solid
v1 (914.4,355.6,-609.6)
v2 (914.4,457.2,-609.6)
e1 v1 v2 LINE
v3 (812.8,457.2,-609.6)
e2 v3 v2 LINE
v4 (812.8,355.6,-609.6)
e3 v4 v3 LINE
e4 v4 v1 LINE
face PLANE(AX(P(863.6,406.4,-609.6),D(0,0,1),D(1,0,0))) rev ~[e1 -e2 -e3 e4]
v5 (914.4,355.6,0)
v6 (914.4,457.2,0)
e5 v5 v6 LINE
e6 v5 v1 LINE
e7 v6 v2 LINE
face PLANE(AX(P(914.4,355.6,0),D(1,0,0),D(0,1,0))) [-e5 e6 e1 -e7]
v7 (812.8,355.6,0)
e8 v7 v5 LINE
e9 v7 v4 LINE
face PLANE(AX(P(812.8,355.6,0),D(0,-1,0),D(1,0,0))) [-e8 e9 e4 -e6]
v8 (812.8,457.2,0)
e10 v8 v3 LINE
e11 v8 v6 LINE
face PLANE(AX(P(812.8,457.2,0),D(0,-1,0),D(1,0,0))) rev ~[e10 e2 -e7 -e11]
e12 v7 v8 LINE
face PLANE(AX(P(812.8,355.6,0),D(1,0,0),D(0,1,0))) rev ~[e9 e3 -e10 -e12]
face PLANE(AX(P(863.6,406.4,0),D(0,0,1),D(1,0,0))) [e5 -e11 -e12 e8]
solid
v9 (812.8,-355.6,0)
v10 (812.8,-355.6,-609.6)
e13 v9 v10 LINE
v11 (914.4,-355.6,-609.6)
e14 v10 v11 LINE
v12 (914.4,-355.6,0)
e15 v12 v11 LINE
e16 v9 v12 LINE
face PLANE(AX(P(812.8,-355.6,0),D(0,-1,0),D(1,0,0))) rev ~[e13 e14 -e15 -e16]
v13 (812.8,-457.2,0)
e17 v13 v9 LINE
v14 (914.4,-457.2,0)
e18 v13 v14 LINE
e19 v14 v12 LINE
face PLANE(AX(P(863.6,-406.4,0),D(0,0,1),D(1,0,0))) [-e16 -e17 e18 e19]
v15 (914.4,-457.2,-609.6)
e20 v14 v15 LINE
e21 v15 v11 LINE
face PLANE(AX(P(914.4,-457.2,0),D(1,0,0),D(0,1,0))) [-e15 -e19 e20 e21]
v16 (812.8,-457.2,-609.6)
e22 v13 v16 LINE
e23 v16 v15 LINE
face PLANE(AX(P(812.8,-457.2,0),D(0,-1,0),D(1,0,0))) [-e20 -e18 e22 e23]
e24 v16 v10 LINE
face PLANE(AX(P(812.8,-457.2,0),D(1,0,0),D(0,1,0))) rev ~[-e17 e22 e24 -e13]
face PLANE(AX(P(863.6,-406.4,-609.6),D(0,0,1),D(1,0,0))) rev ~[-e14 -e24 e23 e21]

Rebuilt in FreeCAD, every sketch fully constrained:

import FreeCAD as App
import Part
import Sketcher
from FreeCAD import Vector
Q = App.Units.Quantity


def add_polygon(sketch, points):
    """Adds a closed chain of lines whose ends are joined by coincident constraints."""
    first, n = sketch.GeometryCount, len(points)
    for a, b in zip(points, points[1:] + points[:1]):
        sketch.addGeometry(Part.LineSegment(App.Vector(*a, 0), App.Vector(*b, 0)), False)
    for i in range(n):
        sketch.addConstraint(Sketcher.Constraint("Coincident", first + i, 2, first + (i + 1) % n, 1))

doc = App.newDocument("Part")
body = doc.addObject("PartDesign::Body", "Body")
body.AllowCompound = True

sketch1 = doc.addObject("Sketcher::SketchObject", "Sketch")
body.addObject(sketch1)
sketch1.AttachmentSupport = (doc.XY_Plane, [""])
sketch1.MapMode = "FlatFace"
add_polygon(sketch1, [(812.8, -355.6), (812.8, -457.2), (914.4, -457.2), (914.4, -355.6)])
add_polygon(sketch1, [(812.8, 457.2), (812.8, 355.6), (914.4, 355.6), (914.4, 457.2)])
sketch1.addConstraint([
    Sketcher.Constraint("Vertical", 0),
    Sketcher.Constraint("Horizontal", 1),
    Sketcher.Constraint("Vertical", 2),
    Sketcher.Constraint("Horizontal", 3),
    Sketcher.Constraint("Vertical", 4),
    Sketcher.Constraint("Horizontal", 5),
    Sketcher.Constraint("Vertical", 6),
    Sketcher.Constraint("Horizontal", 7),
    Sketcher.Constraint("Symmetric", 3, 2, 4, 2, -1),
    Sketcher.Constraint("Symmetric", 1, 2, 6, 2, -1),
    Sketcher.Constraint("Equal", 7, 0),
    Sketcher.Constraint("DistanceX", 1, 1, 1, 2, Q("4 in")),
    Sketcher.Constraint("DistanceX", -1, 1, 0, 2, Q("32 in")),
    Sketcher.Constraint("DistanceY", 0, 2, -1, 1, Q("18 in")),
])
pad1 = doc.addObject("PartDesign::Pad", "Pad")
body.addObject(pad1)
pad1.Profile = sketch1
pad1.Length = Q("24 in")
pad1.Reversed = True

doc.recompute()
